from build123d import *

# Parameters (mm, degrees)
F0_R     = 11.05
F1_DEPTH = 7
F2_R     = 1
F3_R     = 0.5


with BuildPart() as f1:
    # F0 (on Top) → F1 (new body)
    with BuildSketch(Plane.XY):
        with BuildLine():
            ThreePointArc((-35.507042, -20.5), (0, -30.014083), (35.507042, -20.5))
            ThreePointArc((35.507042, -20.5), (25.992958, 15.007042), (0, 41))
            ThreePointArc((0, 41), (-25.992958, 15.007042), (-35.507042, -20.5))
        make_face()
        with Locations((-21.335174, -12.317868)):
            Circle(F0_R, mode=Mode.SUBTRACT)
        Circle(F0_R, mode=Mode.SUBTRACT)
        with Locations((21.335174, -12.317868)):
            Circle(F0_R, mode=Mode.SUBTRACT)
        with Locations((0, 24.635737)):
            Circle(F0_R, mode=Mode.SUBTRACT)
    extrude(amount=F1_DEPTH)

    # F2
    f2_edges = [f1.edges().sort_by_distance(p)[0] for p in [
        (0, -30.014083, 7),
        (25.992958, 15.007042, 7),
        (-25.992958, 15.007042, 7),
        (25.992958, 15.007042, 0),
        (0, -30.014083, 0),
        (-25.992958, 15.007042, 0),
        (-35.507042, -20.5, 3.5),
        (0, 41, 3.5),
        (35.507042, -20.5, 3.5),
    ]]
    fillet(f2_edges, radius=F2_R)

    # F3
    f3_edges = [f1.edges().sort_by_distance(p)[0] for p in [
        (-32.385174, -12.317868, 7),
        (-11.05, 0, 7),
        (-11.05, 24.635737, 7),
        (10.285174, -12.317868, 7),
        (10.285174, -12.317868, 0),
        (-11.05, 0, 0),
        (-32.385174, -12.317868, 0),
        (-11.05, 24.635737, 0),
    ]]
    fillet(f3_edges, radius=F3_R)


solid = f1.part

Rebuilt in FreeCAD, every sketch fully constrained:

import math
import FreeCAD as App
import Part
import Sketcher
from FreeCAD import Vector


def edges_at(feature, points):
    """Names of the edges that pass closest to the given points."""
    edges = feature.Shape.Edges
    near = lambda p: min(range(len(edges)), key=lambda i: edges[i].distToShape(Part.Vertex(*p))[0])
    return sorted({f"Edge{near(p) + 1}" for p in points})

doc = App.newDocument("Part")
body = doc.addObject("PartDesign::Body", "Body")

# Sketch on XY plane
sketch1 = body.newObject("Sketcher::SketchObject", "Sketch")
sketch1.AttachmentSupport = (doc.getObject("XY_Plane"), [""])
sketch1.MapMode = "FlatFace"
sketch1.addGeometry([
    Part.ArcOfCircle(Part.Circle(Vector(0, 41, 0), Vector(0, 0, 1), 71), math.radians(-120), math.radians(-60)),  # 0
    Part.ArcOfCircle(Part.Circle(Vector(-36, -21, 0), Vector(0, 0, 1), 71), math.radians(0), math.radians(60)),  # 1
    Part.ArcOfCircle(Part.Circle(Vector(36, -21, 0), Vector(0, 0, 1), 71), math.radians(120), math.radians(180)),  # 2
    Part.Circle(Vector(-21, -12, 0), Vector(0, 0, 1), 11),  # 3
    Part.Circle(Vector(21, -12, 0), Vector(0, 0, 1), 11),  # 4
    Part.Circle(Vector(0, 0, 0), Vector(0, 0, 1), 11),  # 5
    Part.Circle(Vector(0, 25, 0), Vector(0, 0, 1), 11),  # 6
], False)
sketch1.addConstraint([
    Sketcher.Constraint("Coincident", 0, 2, 1, 1),
    Sketcher.Constraint("Coincident", 1, 2, 2, 1),
    Sketcher.Constraint("Coincident", 2, 2, 0, 1),
    Sketcher.Constraint("Coincident", 5, 3, -1, 1),
    Sketcher.Constraint("Coincident", 0, 2, 2, 3),
    Sketcher.Constraint("Coincident", 1, 2, 0, 3),
    Sketcher.Constraint("Equal", 0, 1),
    Sketcher.Constraint("Equal", 3, 4),
    Sketcher.Constraint("Equal", 4, 5),
    Sketcher.Constraint("Equal", 5, 6),
    Sketcher.Constraint("Symmetric", 1, 3, 2, 3, -2),
    Sketcher.Constraint("Symmetric", 3, 3, 4, 3, -2),
    Sketcher.Constraint("PointOnObject", 6, 3, -2),
    Sketcher.Constraint("Diameter", 3, 22.1),
    Sketcher.Constraint("DistanceY", -1, 1, 1, 2, 41.0),
    Sketcher.Constraint("DistanceY", 1, 3, -1, 1, 20.500002),
    Sketcher.Constraint("DistanceY", 3, 3, -1, 1, 12.317868),
    Sketcher.Constraint("DistanceX", 1, 3, 3, 3, 14.17187),
    Sketcher.Constraint("DistanceY", 1, 3, 6, 3, 45.135739),
])
pad1 = body.newObject("PartDesign::Pad", "Pad")
pad1.Profile = sketch1
pad1.Length = 7
doc.recompute()

fillet = body.newObject("PartDesign::Fillet", "Fillet")
fillet.Base = (pad1, edges_at(pad1, [
    (0, -30.014, 7),
    (25.993, 15.007, 7),
    (-25.993, 15.007, 7),
    (25.993, 15.007, 0),
    (0, -30.014, 0),
    (-25.993, 15.007, 0),
    (-35.507, -20.5, 3.5),
    (0, 41, 3.5),
    (35.507, -20.5, 3.5),
]))
fillet.Radius = 1
doc.recompute()

fillet2 = body.newObject("PartDesign::Fillet", "Fillet001")
fillet2.Base = (fillet, edges_at(fillet, [
    (-32.385, -12.318, 7),
    (-11.05, 0, 7),
    (-11.05, 24.636, 7),
    (10.285, -12.318, 7),
    (10.285, -12.318, 0),
    (-11.05, 0, 0),
    (-32.385, -12.318, 0),
    (-11.05, 24.636, 0),
]))
fillet2.Radius = 0.5

doc.recompute()
